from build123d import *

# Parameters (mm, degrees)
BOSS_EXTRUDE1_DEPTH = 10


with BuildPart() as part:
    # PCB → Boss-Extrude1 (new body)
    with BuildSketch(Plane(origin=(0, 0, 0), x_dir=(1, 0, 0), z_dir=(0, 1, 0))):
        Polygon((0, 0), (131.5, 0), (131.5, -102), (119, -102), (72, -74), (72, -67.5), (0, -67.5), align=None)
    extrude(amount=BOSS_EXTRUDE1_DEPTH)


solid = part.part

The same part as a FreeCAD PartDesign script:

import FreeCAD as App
import Part
import Sketcher

V = App.Vector
Q = App.Units.Quantity


def add_polygon(sketch, points):
    """Adds a closed chain of lines whose ends are joined by coincident constraints."""
    first, n = sketch.GeometryCount, len(points)
    for a, b in zip(points, points[1:] + points[:1]):
        sketch.addGeometry(Part.LineSegment(App.Vector(*a, 0), App.Vector(*b, 0)), False)
    for i in range(n):
        sketch.addConstraint(Sketcher.Constraint("Coincident", first + i, 2, first + (i + 1) % n, 1))

doc = App.newDocument("Part")
params = doc.addObject("Spreadsheet::Sheet", "Params")
for row, (alias, value) in enumerate([
    ("sketch1_width", "72 mm"),
    ("sketch1_height", "102 mm"),
    ("sketch1_width2", "131.5 mm"),
    ("sketch1_width3", "12.5 mm"),
    ("sketch1_height2", "67.5 mm"),
    ("pad1_length", "10 mm"),
], start=1):
    params.set(f"A{row}", alias)
    params.set(f"B{row}", "=" + value)
    params.setAlias(f"B{row}", alias)

body = doc.addObject("PartDesign::Body", "Body")

# Sketch on XZ plane
sketch1 = body.newObject("Sketcher::SketchObject", "Sketch")
sketch1.AttachmentSupport = (doc.getObject("XZ_Plane"), [""])
sketch1.MapMode = "FlatFace"
add_polygon(sketch1, [(132, 0), (0, 0), (0, 68), (72, 68), (72, 74), (119, 102), (132, 102)])  # lines 0-6
sketch1.addConstraint([
    Sketcher.Constraint("Horizontal", 0),
    Sketcher.Constraint("Vertical", 1),
    Sketcher.Constraint("Horizontal", 2),
    Sketcher.Constraint("Vertical", 3),
    Sketcher.Constraint("Horizontal", 5),
    Sketcher.Constraint("Vertical", 6),
    Sketcher.Constraint("Coincident", 0, 2, -1, 1),
    Sketcher.Constraint("DistanceX", 2, 1, 2, 2, Q("72 mm")),
    Sketcher.Constraint("DistanceY", 6, 2, 6, 1, Q("102 mm")),
    Sketcher.Constraint("DistanceX", 0, 2, 0, 1, Q("131.5 mm")),
    Sketcher.Constraint("DistanceX", 5, 1, 5, 2, Q("12.5 mm")),
    Sketcher.Constraint("DistanceY", 1, 1, 1, 2, Q("67.5 mm")),
    Sketcher.Constraint("DistanceY", 3, 1, 3, 2, Q("6.5 mm")),
])
sketch1.setExpression("Constraints[14]", "Params.sketch1_width")
sketch1.setExpression("Constraints[15]", "Params.sketch1_height")
sketch1.setExpression("Constraints[16]", "Params.sketch1_width2")
sketch1.setExpression("Constraints[17]", "Params.sketch1_width3")
sketch1.setExpression("Constraints[18]", "Params.sketch1_height2")
pad1 = body.newObject("PartDesign::Pad", "Pad")
pad1.Profile = sketch1
pad1.setExpression("Length", "Params.pad1_length")
pad1.Reversed = True

doc.recompute()
